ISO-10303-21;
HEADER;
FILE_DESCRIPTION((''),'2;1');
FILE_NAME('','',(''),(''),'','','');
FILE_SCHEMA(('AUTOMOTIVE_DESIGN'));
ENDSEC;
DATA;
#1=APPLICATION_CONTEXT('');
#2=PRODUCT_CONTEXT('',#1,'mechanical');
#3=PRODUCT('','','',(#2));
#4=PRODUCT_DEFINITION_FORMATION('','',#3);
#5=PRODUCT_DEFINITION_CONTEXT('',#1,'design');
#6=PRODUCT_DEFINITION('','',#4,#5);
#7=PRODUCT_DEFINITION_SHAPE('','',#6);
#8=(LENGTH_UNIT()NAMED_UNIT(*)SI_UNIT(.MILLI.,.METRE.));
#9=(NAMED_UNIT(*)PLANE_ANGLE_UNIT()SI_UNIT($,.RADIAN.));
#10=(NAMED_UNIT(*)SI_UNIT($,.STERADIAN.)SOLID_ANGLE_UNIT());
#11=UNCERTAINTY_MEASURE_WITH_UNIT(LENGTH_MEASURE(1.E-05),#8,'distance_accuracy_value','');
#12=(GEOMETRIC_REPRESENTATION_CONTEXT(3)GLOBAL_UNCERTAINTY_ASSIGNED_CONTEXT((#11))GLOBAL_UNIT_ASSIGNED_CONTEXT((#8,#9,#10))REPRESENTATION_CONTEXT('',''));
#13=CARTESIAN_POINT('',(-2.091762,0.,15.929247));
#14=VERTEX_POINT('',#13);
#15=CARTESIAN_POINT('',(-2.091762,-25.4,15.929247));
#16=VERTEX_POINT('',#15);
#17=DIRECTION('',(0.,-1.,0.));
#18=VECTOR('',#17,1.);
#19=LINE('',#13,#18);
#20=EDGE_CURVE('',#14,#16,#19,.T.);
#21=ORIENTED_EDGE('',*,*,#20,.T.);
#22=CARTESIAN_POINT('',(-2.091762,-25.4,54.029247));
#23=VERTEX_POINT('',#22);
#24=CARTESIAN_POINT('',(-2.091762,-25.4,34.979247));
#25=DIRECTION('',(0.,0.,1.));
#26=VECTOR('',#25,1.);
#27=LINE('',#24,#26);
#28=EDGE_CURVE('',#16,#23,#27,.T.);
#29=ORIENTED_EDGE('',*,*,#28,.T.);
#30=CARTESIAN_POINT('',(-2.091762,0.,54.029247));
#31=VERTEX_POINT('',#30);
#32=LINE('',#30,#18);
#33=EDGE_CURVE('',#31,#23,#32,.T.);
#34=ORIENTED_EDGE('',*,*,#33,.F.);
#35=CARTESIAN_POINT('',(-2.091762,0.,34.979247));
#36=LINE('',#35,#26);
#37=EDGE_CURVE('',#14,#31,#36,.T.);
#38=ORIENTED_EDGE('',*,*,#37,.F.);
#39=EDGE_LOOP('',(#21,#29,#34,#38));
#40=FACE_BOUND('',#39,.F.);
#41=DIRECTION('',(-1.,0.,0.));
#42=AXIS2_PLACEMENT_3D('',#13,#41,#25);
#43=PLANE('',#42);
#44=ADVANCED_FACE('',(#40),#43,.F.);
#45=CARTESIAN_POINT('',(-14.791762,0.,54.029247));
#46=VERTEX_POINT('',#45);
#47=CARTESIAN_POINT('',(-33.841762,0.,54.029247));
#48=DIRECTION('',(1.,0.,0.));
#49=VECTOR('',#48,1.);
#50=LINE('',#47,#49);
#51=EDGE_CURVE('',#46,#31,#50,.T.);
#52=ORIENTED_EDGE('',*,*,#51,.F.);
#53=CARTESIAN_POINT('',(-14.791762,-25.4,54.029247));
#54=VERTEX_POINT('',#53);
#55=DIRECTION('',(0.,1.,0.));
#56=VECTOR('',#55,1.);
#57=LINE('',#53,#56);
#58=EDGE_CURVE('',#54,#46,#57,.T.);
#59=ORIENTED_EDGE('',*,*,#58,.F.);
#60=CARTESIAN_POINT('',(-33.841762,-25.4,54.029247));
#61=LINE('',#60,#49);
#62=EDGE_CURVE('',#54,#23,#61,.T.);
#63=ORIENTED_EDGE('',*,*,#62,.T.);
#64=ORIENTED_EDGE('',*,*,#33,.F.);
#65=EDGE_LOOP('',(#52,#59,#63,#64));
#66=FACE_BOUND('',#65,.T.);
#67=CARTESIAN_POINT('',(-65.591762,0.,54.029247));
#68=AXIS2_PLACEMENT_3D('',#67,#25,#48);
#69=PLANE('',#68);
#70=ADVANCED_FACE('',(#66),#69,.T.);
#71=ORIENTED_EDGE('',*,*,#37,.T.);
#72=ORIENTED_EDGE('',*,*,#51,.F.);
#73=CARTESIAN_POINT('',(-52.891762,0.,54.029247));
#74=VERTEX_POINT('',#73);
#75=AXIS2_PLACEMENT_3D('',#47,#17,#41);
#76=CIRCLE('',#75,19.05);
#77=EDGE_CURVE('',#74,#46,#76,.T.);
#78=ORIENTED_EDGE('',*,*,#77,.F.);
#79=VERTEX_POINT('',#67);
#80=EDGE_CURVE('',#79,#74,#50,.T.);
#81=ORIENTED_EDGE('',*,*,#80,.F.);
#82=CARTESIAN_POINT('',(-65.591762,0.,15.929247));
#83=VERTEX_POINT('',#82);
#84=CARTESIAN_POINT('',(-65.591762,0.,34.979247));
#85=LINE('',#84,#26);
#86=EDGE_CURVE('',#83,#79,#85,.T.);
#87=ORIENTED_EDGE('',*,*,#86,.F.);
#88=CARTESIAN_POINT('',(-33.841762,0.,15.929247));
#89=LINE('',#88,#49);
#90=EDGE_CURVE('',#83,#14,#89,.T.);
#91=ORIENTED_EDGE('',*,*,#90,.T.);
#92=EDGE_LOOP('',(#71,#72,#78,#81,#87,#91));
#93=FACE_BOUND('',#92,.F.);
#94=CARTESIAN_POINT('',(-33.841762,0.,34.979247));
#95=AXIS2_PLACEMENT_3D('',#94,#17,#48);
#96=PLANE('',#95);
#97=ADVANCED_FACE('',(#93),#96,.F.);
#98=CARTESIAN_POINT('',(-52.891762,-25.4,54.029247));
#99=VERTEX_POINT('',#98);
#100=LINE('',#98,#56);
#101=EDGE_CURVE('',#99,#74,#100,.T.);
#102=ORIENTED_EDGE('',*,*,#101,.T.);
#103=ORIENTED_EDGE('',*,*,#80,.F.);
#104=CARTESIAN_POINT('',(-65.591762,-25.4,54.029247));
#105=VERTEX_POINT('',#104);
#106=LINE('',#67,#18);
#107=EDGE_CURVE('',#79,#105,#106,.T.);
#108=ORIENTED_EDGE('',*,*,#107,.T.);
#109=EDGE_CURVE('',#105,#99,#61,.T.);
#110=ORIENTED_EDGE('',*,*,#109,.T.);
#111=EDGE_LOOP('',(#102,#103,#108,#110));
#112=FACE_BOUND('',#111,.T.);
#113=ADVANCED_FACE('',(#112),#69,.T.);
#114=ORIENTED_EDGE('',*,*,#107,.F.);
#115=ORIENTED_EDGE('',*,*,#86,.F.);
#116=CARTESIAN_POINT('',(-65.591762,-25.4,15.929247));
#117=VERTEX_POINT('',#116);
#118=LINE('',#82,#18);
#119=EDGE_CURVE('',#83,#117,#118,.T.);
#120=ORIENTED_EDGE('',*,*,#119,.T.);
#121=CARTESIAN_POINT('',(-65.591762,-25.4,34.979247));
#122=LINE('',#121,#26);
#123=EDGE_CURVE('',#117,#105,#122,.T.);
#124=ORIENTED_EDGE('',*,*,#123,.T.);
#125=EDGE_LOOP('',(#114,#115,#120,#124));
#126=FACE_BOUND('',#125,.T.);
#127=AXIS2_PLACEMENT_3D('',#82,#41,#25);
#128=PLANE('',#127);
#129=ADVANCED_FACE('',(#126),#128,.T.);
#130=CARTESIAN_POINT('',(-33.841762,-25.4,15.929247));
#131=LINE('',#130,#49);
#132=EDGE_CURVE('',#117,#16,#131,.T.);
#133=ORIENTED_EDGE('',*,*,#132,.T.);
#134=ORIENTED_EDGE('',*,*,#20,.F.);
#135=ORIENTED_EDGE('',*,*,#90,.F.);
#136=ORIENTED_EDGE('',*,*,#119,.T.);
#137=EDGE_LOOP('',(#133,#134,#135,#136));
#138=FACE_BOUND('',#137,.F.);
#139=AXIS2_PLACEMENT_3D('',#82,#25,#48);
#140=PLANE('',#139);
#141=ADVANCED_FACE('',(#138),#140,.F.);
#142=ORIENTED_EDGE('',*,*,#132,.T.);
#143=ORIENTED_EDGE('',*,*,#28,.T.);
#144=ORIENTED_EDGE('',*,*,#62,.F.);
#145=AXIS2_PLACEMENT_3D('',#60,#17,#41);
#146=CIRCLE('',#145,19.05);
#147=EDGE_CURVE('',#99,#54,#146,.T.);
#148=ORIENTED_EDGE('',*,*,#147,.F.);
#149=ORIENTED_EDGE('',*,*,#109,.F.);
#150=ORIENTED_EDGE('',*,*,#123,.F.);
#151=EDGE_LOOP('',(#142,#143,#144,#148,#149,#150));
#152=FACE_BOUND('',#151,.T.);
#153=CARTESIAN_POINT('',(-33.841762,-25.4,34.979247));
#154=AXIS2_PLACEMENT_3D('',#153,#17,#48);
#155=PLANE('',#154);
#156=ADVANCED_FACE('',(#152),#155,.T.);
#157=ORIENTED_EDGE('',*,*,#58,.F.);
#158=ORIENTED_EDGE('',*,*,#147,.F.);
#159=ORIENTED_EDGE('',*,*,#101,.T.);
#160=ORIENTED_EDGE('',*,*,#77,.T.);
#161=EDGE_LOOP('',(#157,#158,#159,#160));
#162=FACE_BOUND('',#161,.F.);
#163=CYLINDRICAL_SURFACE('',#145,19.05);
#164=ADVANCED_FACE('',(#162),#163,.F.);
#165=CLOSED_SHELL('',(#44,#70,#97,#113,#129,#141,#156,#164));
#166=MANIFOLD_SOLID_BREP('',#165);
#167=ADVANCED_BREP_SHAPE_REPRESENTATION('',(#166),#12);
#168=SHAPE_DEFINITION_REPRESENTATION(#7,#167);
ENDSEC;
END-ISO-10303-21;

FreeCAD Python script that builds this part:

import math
import FreeCAD as App
import Part
import Sketcher

V = App.Vector
Q = App.Units.Quantity

doc = App.newDocument("Part")
body = doc.addObject("PartDesign::Body", "Body")

# Sketch on XZ plane
sketch1 = body.newObject("Sketcher::SketchObject", "Sketch")
sketch1.AttachmentSupport = (doc.getObject("XZ_Plane"), [""])
sketch1.MapMode = "FlatFace"
sketch1.addGeometry([
    Part.LineSegment(V(-66, 54, 0), V(-66, 16, 0)),
    Part.LineSegment(V(-66, 16, 0), V(-2, 16, 0)),
    Part.LineSegment(V(-2, 16, 0), V(-2, 54, 0)),
    Part.LineSegment(V(-2, 54, 0), V(-66, 54, 0)),
], False)
sketch1.addConstraint([
    Sketcher.Constraint("Coincident", 0, 2, 1, 1),
    Sketcher.Constraint("Coincident", 1, 2, 2, 1),
    Sketcher.Constraint("Coincident", 2, 2, 3, 1),
    Sketcher.Constraint("Coincident", 3, 2, 0, 1),
    Sketcher.Constraint("Vertical", 0),
    Sketcher.Constraint("Horizontal", 1),
    Sketcher.Constraint("Vertical", 2),
    Sketcher.Constraint("Horizontal", 3),
    Sketcher.Constraint("DistanceX", 1, 1, 1, 2, Q("2.5 in")),
    Sketcher.Constraint("DistanceY", 0, 2, 0, 1, Q("1.5 in")),
    Sketcher.Constraint("DistanceX", 0, 2, -1, 1, 65.591762),
    Sketcher.Constraint("DistanceY", -1, 1, 0, 2, 15.929247),
])
pad1 = body.newObject("PartDesign::Pad", "Pad")
pad1.Profile = sketch1
pad1.Length = Q("1 in")

# Sketch on XZ plane
sketch2 = body.newObject("Sketcher::SketchObject", "Sketch001")
sketch2.AttachmentSupport = (doc.getObject("XZ_Plane"), [""])
sketch2.MapMode = "FlatFace"
sketch2.AttachmentOffset = App.Placement(V(0, 0, 1 * 25.4), App.Rotation())
sketch2.addGeometry([
    Part.ArcOfCircle(Part.Circle(V(-34, 54, 0), V(0, 0, 1), 19), math.radians(180), math.radians(360)),
    Part.LineSegment(V(-15, 54, 0), V(-53, 54, 0)),
], False)
sketch2.addConstraint([
    Sketcher.Constraint("Coincident", 0, 1, 1, 2),
    Sketcher.Constraint("Coincident", 1, 1, 0, 2),
    Sketcher.Constraint("Horizontal", 1),
    Sketcher.Constraint("Radius", 0, Q("0.75 in")),
    Sketcher.Constraint("DistanceX", 0, 3, -1, 1, 33.841762),
    Sketcher.Constraint("DistanceY", -1, 1, 0, 3, 54.029247),
    Sketcher.Constraint("DistanceY", -1, 1, 0, 1, 54.029247),
])
pocket1 = body.newObject("PartDesign::Pocket", "Pocket")
pocket1.Profile = sketch2
pocket1.Type = "ThroughAll"

doc.recompute()
